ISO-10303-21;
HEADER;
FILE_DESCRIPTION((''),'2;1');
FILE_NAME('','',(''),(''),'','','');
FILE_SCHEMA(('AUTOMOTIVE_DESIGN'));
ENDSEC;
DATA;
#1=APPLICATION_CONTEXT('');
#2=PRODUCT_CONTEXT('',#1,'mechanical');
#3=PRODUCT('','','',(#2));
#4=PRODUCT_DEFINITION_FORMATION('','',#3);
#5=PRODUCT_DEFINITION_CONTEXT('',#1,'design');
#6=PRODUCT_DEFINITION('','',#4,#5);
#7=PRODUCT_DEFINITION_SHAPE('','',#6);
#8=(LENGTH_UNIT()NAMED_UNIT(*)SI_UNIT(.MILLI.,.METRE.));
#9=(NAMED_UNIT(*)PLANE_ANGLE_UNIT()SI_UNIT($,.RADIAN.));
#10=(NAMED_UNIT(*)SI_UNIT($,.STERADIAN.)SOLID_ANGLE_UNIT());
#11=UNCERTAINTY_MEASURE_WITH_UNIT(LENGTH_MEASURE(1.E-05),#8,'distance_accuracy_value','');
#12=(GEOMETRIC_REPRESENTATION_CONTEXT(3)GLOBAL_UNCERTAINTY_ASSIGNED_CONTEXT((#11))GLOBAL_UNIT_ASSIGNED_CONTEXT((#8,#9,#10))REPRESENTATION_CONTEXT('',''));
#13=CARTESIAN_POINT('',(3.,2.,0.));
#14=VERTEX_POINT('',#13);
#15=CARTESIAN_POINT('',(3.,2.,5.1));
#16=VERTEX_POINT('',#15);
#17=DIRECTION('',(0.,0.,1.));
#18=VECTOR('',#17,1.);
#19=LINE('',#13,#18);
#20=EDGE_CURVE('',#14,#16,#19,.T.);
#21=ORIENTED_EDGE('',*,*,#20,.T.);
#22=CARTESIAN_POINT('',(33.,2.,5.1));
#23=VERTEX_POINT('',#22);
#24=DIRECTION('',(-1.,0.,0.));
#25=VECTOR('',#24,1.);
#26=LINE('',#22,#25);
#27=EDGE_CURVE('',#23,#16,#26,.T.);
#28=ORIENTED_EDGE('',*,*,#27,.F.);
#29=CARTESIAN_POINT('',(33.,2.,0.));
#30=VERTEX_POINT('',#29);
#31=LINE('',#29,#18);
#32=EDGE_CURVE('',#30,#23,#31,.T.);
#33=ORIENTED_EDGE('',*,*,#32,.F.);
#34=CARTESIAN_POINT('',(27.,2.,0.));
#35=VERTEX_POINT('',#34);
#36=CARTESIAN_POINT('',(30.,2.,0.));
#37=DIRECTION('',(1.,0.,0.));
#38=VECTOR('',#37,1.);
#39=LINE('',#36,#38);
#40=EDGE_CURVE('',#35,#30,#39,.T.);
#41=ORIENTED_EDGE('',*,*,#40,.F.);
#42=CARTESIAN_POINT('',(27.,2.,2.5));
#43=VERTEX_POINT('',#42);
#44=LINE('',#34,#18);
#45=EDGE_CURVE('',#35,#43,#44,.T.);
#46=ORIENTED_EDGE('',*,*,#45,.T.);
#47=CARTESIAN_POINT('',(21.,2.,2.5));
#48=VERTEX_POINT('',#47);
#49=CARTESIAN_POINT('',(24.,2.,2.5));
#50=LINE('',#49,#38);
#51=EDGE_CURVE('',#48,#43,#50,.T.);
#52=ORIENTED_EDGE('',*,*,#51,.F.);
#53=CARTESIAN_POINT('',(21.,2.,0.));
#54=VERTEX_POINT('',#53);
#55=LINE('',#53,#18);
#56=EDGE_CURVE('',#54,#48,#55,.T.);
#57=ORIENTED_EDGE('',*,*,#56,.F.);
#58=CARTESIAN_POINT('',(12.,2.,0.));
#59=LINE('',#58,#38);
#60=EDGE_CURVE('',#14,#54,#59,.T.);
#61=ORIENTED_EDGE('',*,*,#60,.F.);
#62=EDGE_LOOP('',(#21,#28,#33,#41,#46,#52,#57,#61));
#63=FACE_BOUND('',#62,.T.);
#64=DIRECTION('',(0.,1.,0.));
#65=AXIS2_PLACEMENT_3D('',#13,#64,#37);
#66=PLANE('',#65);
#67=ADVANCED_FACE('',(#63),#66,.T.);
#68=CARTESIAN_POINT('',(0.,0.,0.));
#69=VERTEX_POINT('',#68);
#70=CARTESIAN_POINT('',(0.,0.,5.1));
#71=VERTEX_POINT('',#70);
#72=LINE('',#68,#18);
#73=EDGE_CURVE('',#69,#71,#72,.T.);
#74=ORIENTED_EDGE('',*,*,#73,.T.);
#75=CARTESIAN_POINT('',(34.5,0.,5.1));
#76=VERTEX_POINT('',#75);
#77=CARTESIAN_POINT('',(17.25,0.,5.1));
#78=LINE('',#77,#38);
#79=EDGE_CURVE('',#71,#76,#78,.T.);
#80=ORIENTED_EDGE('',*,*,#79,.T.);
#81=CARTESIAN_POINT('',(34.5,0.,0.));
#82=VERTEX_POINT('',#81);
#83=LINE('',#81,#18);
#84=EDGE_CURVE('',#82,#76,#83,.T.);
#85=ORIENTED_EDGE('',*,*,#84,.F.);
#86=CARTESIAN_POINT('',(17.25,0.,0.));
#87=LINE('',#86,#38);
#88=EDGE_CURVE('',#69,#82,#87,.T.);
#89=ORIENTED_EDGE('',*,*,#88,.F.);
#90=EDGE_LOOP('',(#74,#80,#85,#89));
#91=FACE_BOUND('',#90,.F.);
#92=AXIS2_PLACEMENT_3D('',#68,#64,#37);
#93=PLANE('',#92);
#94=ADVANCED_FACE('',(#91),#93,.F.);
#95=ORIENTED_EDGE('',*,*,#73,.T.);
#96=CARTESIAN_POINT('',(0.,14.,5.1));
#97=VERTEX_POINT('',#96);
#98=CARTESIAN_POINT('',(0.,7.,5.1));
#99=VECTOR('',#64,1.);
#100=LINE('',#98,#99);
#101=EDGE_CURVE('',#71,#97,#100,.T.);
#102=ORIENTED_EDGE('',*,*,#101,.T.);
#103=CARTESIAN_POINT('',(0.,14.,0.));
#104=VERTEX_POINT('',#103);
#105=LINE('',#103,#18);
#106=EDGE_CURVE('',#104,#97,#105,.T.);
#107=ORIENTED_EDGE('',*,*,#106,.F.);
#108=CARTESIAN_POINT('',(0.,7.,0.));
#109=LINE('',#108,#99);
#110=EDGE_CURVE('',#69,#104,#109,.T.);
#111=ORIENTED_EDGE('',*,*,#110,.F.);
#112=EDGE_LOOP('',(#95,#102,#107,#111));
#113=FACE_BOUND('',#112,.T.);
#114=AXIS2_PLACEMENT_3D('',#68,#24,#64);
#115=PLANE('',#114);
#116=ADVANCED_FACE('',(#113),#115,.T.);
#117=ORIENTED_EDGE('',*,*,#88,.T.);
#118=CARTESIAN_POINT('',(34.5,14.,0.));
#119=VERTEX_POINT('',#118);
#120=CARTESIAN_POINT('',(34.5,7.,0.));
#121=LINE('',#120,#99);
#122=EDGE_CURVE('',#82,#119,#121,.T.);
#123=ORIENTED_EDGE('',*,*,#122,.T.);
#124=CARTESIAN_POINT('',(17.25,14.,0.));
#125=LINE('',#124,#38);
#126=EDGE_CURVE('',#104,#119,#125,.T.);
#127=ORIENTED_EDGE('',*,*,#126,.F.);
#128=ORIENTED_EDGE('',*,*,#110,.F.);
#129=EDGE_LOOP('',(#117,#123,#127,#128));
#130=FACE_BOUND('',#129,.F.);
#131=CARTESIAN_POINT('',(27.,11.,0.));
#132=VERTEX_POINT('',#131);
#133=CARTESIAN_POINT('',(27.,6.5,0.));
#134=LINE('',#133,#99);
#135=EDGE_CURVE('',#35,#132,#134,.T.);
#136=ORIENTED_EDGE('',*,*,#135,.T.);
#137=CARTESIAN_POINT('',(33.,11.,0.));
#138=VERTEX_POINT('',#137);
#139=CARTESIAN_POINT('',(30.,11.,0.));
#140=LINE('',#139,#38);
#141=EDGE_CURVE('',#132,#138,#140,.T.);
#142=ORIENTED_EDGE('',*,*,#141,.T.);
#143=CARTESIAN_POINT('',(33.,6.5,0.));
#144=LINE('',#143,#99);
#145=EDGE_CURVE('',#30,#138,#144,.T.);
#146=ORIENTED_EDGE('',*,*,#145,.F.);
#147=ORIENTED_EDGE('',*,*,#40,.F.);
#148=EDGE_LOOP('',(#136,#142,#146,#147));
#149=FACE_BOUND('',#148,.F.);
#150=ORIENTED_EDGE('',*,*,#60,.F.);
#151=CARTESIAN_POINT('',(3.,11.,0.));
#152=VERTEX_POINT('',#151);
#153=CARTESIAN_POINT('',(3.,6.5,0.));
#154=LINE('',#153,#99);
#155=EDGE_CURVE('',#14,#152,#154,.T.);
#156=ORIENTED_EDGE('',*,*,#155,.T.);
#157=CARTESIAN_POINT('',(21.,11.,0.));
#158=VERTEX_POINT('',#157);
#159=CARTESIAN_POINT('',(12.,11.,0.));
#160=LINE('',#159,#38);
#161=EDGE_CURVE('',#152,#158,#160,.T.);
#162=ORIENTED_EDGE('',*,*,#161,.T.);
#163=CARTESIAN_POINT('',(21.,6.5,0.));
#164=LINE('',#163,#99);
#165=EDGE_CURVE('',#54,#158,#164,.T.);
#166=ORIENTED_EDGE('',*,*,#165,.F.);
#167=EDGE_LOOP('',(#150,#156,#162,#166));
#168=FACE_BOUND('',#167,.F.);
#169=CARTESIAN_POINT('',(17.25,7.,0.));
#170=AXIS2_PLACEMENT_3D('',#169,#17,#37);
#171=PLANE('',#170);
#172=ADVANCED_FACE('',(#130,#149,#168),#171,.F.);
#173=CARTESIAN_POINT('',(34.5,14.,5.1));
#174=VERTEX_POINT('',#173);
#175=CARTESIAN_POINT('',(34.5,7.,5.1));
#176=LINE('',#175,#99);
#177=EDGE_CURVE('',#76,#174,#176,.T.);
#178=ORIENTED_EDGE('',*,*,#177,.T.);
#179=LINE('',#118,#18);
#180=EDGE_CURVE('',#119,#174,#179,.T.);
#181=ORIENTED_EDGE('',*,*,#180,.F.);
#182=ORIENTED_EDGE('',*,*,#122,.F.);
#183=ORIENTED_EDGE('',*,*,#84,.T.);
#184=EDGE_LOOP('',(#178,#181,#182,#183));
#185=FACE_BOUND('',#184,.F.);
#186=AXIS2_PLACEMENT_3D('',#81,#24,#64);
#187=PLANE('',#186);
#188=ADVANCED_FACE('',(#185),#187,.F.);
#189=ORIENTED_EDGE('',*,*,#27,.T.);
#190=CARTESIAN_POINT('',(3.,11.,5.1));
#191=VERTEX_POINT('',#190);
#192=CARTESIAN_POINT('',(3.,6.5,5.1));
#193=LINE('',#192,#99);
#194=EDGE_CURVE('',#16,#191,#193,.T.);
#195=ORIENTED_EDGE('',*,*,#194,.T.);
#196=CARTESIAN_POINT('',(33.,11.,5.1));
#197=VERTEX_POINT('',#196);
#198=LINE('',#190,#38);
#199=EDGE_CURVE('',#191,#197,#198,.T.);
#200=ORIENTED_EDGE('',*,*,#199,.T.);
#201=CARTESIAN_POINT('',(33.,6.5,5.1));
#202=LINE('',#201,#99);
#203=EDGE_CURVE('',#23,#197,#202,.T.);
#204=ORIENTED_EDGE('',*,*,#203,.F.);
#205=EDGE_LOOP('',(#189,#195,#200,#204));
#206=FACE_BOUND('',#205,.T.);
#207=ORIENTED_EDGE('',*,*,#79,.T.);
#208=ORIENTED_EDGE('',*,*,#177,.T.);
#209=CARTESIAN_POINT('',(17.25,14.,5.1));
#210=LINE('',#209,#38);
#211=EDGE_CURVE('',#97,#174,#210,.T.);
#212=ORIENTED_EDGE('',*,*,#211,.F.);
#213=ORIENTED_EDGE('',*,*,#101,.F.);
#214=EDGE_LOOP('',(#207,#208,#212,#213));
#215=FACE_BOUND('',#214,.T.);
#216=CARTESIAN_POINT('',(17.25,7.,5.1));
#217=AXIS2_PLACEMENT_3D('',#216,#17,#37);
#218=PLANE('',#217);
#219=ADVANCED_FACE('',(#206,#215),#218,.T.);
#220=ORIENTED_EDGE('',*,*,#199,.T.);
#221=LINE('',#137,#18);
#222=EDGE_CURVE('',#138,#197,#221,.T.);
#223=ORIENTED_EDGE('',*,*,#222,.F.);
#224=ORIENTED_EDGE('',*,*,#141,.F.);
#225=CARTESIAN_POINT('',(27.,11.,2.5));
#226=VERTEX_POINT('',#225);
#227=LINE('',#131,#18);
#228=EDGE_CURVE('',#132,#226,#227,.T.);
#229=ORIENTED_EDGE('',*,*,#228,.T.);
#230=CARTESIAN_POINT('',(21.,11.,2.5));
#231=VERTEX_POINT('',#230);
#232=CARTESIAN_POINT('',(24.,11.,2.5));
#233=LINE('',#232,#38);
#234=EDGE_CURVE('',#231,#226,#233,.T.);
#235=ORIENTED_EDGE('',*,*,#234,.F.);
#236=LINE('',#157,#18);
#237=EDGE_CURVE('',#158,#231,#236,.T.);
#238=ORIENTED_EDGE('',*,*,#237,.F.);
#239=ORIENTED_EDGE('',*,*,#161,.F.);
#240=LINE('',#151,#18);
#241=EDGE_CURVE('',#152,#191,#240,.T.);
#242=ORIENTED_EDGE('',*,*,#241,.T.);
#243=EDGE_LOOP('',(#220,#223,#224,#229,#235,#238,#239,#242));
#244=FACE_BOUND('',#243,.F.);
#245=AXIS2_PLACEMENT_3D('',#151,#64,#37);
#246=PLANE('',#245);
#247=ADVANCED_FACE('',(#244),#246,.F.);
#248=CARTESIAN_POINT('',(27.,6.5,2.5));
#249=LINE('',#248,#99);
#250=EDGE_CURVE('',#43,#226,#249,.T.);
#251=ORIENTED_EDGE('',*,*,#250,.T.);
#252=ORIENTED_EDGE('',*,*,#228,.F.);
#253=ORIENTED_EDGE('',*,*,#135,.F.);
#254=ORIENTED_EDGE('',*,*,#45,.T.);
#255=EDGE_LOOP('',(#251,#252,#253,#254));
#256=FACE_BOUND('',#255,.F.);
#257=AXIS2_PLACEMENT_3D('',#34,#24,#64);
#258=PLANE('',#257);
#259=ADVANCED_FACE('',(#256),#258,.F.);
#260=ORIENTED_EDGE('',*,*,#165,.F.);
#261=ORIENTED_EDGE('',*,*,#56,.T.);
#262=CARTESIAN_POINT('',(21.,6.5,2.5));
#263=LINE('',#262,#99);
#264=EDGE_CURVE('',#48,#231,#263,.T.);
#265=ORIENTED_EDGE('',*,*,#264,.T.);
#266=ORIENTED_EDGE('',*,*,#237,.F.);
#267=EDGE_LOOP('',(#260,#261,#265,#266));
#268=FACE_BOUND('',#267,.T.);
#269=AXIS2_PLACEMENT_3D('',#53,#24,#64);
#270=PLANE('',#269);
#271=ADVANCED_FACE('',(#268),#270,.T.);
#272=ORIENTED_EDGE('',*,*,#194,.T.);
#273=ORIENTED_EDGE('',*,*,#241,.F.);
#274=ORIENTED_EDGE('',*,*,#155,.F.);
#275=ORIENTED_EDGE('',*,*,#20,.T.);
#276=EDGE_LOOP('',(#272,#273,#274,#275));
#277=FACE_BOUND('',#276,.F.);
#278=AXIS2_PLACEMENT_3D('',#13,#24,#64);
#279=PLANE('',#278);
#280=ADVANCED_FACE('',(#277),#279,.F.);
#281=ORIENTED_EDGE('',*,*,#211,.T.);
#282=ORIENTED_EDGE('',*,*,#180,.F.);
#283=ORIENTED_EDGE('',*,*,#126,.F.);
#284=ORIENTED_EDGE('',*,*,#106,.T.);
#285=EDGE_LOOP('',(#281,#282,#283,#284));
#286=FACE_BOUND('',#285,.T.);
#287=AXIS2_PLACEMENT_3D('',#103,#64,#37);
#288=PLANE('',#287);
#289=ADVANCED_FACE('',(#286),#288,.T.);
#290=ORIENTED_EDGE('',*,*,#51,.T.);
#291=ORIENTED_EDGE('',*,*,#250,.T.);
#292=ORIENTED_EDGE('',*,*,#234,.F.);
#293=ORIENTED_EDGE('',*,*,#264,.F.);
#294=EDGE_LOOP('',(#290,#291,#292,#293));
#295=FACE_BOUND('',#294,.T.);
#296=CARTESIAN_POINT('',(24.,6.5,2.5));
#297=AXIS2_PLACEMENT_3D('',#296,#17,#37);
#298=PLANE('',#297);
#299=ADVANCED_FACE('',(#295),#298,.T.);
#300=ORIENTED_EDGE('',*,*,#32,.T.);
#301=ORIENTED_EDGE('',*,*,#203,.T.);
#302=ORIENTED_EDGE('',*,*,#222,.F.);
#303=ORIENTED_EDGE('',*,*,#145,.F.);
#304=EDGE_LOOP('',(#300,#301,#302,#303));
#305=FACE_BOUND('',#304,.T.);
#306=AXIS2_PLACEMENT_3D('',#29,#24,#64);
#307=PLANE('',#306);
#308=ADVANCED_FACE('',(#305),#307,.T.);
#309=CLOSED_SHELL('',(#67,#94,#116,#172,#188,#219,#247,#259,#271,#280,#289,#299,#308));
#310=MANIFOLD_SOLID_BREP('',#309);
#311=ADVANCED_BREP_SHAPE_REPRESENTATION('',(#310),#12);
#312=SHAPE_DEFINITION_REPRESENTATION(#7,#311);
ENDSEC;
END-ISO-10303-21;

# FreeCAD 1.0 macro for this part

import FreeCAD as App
import Part
import Sketcher
from FreeCAD import Vector
Q = App.Units.Quantity


def add_polygon(sketch, points):
    """Adds a closed chain of lines whose ends are joined by coincident constraints."""
    first, n = sketch.GeometryCount, len(points)
    for a, b in zip(points, points[1:] + points[:1]):
        sketch.addGeometry(Part.LineSegment(App.Vector(*a, 0), App.Vector(*b, 0)), False)
    for i in range(n):
        sketch.addConstraint(Sketcher.Constraint("Coincident", first + i, 2, first + (i + 1) % n, 1))

doc = App.newDocument("Part")
body = doc.addObject("PartDesign::Body", "Body")

sketch1 = doc.addObject("Sketcher::SketchObject", "Sketch")
body.addObject(sketch1)
sketch1.AttachmentSupport = (doc.XY_Plane, [""])
sketch1.MapMode = "FlatFace"
add_polygon(sketch1, [(0, 14), (0, 0), (34.5, 0), (34.5, 14)])
add_polygon(sketch1, [(21, 2), (3, 2), (3, 11), (21, 11)])
add_polygon(sketch1, [(33, 2), (27, 2), (27, 11), (33, 11)])
sketch1.addConstraint([
    Sketcher.Constraint("Vertical", 0),
    Sketcher.Constraint("Horizontal", 1),
    Sketcher.Constraint("Vertical", 2),
    Sketcher.Constraint("Horizontal", 3),
    Sketcher.Constraint("Horizontal", 4),
    Sketcher.Constraint("Vertical", 5),
    Sketcher.Constraint("Horizontal", 6),
    Sketcher.Constraint("Vertical", 7),
    Sketcher.Constraint("Horizontal", 8),
    Sketcher.Constraint("Vertical", 9),
    Sketcher.Constraint("Horizontal", 10),
    Sketcher.Constraint("Vertical", 11),
    Sketcher.Constraint("Coincident", 0, 2, -1, 1),
    Sketcher.Constraint("Horizontal", 7, 2, 8, 2),
    Sketcher.Constraint("Horizontal", 6, 2, 9, 2),
    Sketcher.Constraint("DistanceX", 4, 2, 4, 1, Q("18 mm")),
    Sketcher.Constraint("DistanceX", 8, 2, 8, 1, Q("6 mm")),
    Sketcher.Constraint("DistanceY", 0, 2, 0, 1, Q("14 mm")),
    Sketcher.Constraint("DistanceY", 5, 1, 5, 2, Q("9 mm")),
    Sketcher.Constraint("DistanceX", 1, 1, 1, 2, Q("34.5 mm")),
    Sketcher.Constraint("DistanceX", -1, 1, 4, 2, Q("3 mm")),
    Sketcher.Constraint("DistanceY", -1, 1, 4, 2, Q("2 mm")),
    Sketcher.Constraint("DistanceX", -1, 1, 8, 2, Q("27 mm")),
])
pad1 = doc.addObject("PartDesign::Pad", "Pad")
body.addObject(pad1)
pad1.Profile = sketch1
pad1.Length = 5.1

sketch2 = doc.addObject("Sketcher::SketchObject", "Sketch001")
body.addObject(sketch2)
sketch2.AttachmentSupport = (doc.XY_Plane, [""])
sketch2.MapMode = "FlatFace"
sketch2.AttachmentOffset = App.Placement(Vector(0, 0, 5.1), App.Rotation())
add_polygon(sketch2, [(21, 11), (21, 2), (27, 2), (27, 11)])
sketch2.addConstraint([
    Sketcher.Constraint("Vertical", 0),
    Sketcher.Constraint("Horizontal", 1),
    Sketcher.Constraint("Vertical", 2),
    Sketcher.Constraint("Horizontal", 3),
    Sketcher.Constraint("DistanceX", 1, 1, 1, 2, Q("6 mm")),
    Sketcher.Constraint("DistanceY", 0, 2, 0, 1, Q("9 mm")),
    Sketcher.Constraint("DistanceX", -1, 1, 0, 2, Q("21 mm")),
    Sketcher.Constraint("DistanceY", -1, 1, 0, 2, Q("2 mm")),
])
pocket1 = doc.addObject("PartDesign::Pocket", "Pocket")
body.addObject(pocket1)
pocket1.Profile = sketch2
pocket1.Length = 2.6

doc.recompute()
